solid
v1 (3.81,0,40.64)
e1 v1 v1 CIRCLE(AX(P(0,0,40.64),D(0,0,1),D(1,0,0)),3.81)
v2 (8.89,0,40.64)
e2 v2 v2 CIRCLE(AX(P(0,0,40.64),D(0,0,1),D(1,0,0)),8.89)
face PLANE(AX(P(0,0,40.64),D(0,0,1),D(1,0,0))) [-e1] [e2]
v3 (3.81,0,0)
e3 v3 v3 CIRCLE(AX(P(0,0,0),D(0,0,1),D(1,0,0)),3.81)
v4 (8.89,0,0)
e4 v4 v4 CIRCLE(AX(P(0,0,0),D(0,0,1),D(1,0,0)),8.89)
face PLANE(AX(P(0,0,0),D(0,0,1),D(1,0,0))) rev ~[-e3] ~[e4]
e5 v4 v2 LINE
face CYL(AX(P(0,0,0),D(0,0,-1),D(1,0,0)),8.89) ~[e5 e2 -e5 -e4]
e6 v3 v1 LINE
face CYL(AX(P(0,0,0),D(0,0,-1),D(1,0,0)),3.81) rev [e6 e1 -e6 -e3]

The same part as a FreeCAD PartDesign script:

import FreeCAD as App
import Part
import Sketcher

V = App.Vector
Q = App.Units.Quantity

doc = App.newDocument("Part")
body = doc.addObject("PartDesign::Body", "Body")

# Sketch on XY plane
sketch1 = body.newObject("Sketcher::SketchObject", "Sketch")
sketch1.AttachmentSupport = (doc.getObject("XY_Plane"), [""])
sketch1.MapMode = "FlatFace"
sketch1.addGeometry(Part.Circle(V(0, 0, 0), V(0, 0, 1), 8.9), False)
sketch1.addGeometry(Part.Circle(V(0, 0, 0), V(0, 0, 1), 3.8), False)
sketch1.addConstraint(Sketcher.Constraint("Coincident", 0, 3, -1, 1))
sketch1.addConstraint(Sketcher.Constraint("Coincident", 1, 3, -1, 1))
sketch1.addConstraint(Sketcher.Constraint("Diameter", 1, Q("0.3 in")))
sketch1.addConstraint(Sketcher.Constraint("Diameter", 0, Q("0.7 in")))
pad1 = body.newObject("PartDesign::Pad", "Pad")
pad1.Profile = sketch1
pad1.Length = Q("1.6 in")

doc.recompute()
